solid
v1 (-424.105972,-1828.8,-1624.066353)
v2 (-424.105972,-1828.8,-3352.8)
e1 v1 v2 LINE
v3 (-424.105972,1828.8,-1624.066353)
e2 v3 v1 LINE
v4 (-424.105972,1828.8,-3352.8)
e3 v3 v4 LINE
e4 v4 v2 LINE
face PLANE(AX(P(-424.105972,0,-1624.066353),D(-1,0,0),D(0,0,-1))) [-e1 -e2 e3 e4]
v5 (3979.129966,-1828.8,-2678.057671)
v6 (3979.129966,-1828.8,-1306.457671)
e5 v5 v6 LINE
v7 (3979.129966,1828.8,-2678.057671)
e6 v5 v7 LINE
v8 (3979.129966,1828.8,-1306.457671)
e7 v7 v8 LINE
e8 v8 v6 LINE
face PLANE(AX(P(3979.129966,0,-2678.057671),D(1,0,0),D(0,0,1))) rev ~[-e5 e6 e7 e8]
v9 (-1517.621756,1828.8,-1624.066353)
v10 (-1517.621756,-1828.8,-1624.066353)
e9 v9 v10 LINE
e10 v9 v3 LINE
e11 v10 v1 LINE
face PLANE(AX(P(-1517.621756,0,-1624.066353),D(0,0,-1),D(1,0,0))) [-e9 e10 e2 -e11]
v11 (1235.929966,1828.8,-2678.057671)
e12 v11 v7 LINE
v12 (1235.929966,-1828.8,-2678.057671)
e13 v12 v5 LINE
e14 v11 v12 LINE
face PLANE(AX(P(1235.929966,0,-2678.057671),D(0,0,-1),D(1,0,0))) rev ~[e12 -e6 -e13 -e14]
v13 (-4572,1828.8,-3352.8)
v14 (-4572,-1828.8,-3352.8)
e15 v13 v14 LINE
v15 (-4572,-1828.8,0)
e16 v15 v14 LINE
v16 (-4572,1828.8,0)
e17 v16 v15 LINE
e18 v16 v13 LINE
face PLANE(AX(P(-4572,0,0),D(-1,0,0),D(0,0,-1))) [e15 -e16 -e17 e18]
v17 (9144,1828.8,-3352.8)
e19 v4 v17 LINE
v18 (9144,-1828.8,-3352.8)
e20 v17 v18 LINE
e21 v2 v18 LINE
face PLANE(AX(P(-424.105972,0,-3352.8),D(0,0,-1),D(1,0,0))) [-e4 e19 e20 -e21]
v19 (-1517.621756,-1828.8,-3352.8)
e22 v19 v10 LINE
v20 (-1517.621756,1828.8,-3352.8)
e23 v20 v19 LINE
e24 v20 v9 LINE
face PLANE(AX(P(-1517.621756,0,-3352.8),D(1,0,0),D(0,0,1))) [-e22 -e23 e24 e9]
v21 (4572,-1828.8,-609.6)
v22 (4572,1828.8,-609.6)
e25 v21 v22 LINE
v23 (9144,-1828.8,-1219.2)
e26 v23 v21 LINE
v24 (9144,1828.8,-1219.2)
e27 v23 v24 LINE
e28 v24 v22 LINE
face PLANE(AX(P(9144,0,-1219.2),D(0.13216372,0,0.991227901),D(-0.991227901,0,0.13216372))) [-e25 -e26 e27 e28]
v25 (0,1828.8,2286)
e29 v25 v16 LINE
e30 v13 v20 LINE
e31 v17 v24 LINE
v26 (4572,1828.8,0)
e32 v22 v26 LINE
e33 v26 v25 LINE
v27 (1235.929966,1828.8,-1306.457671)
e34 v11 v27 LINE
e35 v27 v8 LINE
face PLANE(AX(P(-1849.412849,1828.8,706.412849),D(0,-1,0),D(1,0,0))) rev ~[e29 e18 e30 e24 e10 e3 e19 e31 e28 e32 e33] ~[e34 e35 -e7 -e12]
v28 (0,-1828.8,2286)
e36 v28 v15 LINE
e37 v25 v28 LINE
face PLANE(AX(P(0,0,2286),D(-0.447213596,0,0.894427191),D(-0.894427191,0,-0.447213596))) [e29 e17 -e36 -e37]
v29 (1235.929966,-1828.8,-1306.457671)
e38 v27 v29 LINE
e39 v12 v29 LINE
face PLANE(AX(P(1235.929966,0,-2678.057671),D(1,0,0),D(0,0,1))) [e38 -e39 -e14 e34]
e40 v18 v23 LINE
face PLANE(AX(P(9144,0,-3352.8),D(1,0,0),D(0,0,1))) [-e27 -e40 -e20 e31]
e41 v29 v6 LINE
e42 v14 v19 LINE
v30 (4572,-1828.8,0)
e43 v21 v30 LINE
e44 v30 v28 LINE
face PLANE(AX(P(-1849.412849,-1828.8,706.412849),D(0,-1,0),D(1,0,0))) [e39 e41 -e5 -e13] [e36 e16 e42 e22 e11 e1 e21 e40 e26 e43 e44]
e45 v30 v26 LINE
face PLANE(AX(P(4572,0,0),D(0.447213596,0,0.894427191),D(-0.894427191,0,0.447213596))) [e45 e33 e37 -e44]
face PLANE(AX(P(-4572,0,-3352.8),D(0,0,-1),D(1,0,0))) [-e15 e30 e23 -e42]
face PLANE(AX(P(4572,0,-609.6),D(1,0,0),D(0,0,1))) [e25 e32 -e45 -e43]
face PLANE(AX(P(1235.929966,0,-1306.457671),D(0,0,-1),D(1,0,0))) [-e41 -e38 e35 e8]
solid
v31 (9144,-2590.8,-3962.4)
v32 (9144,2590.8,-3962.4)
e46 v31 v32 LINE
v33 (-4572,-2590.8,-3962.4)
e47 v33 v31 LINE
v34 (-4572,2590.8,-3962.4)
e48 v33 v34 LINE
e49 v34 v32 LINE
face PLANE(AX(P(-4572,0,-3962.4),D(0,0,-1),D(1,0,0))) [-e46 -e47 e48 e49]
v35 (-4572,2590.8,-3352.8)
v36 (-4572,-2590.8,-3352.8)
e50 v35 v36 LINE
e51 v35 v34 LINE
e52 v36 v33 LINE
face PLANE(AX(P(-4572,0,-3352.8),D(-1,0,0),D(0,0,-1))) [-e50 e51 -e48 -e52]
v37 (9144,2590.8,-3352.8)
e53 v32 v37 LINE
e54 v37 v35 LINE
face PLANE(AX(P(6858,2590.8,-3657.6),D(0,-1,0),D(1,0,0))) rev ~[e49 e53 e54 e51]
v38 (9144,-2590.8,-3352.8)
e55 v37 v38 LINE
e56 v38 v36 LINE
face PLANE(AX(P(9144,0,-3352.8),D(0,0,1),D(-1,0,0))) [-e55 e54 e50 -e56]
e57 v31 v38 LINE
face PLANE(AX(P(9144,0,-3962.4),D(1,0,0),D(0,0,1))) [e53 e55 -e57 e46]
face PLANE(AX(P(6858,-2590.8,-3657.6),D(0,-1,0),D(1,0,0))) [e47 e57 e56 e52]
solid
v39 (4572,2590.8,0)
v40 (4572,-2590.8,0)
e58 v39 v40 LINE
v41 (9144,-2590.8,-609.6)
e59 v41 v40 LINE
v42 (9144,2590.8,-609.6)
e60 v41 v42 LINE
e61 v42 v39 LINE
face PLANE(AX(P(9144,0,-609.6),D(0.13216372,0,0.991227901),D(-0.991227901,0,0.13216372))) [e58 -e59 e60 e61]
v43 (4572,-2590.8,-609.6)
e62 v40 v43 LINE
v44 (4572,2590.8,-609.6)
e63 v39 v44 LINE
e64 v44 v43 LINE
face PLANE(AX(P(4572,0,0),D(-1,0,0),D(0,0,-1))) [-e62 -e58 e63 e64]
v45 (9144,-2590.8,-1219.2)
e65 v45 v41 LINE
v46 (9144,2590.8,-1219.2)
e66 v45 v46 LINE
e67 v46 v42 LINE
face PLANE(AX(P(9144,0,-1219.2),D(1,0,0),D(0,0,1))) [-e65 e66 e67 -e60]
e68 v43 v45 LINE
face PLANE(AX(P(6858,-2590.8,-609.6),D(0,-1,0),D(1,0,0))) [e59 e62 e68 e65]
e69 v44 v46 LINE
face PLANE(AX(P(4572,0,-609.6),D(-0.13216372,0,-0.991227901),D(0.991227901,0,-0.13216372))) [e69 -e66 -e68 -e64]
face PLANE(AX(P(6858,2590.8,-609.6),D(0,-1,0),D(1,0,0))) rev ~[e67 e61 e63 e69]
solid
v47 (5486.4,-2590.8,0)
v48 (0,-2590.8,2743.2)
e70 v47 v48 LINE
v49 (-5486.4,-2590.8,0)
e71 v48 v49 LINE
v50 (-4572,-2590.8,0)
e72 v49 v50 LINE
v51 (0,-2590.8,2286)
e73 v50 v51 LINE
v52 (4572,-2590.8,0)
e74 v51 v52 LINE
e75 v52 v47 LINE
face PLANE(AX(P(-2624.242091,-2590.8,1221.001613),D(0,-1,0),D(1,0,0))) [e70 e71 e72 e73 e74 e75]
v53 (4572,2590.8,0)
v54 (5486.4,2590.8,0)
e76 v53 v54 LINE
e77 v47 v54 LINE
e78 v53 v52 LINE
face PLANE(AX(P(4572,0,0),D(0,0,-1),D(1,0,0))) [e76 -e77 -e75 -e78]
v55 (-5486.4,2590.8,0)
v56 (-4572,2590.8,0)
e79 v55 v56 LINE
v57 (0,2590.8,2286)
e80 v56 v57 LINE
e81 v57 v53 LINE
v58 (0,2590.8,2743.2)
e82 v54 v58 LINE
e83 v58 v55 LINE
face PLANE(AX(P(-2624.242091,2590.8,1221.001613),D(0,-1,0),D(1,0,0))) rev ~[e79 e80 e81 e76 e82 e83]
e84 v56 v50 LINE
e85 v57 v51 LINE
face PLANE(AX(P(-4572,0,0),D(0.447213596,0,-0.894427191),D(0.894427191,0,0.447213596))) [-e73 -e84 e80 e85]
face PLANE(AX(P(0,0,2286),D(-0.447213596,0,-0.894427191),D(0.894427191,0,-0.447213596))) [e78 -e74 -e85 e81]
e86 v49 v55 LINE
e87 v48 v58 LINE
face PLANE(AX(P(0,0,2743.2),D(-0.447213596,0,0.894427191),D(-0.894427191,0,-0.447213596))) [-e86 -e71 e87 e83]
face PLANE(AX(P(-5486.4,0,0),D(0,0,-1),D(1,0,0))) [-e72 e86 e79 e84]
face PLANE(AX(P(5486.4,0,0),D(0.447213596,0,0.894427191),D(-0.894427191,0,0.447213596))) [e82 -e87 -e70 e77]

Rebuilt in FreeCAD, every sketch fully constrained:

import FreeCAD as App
import Part
import Sketcher
Q = App.Units.Quantity


def add_polygon(sketch, points):
    """Adds a closed chain of lines whose ends are joined by coincident constraints."""
    first, n = sketch.GeometryCount, len(points)
    for a, b in zip(points, points[1:] + points[:1]):
        sketch.addGeometry(Part.LineSegment(App.Vector(*a, 0), App.Vector(*b, 0)), False)
    for i in range(n):
        sketch.addConstraint(Sketcher.Constraint("Coincident", first + i, 2, first + (i + 1) % n, 1))

doc = App.newDocument("Part")
params = doc.addObject("Spreadsheet::Sheet", "Params")
for row, (alias, value) in enumerate([
    ("sketch1_width", "36 in"),
    ("pad1_length", "204 in"),
    ("sketch2_height", "24 in"),
    ("pad2_length", "204 in"),
    ("sketch3_width", "540 in"),
    ("sketch3_height", "24 in"),
    ("pad3_length", "204 in"),
    ("sketch4_width", "108 in"),
    ("sketch4_height", "132 in"),
    ("sketch4_height2", "84 in"),
    ("sketch4_height3", "24 in"),
    ("sketch4_height4", "54 in"),
    ("pad4_length", "144 in"),
], start=1):
    params.set(f"A{row}", alias)
    params.set(f"B{row}", "=" + value)
    params.setAlias(f"B{row}", alias)

body = doc.addObject("PartDesign::Body", "Body")

# Sketch on XZ plane
sketch1 = body.newObject("Sketcher::SketchObject", "Sketch")
sketch1.AttachmentSupport = (doc.getObject("XZ_Plane"), [""])
sketch1.MapMode = "FlatFace"
add_polygon(sketch1, [(-5486, 0), (-4572, 0), (0, 2286), (4572, 0), (5486, 0), (0, 2743)])  # lines 0-5
sketch1.addConstraint([
    Sketcher.Constraint("Horizontal", 0),
    Sketcher.Constraint("Horizontal", 3),
    Sketcher.Constraint("Symmetric", 0, 2, 2, 2, -1, 1),
    Sketcher.Constraint("Symmetric", 3, 2, 5, 2, -2),
    Sketcher.Constraint("PointOnObject", 1, 2, -2),
    Sketcher.Constraint("PointOnObject", 4, 2, -2),
    Sketcher.Constraint("Parallel", 2, 4),
    Sketcher.Constraint("DistanceX", 0, 1, 0, 2, Q("36 in")),
    Sketcher.Constraint("DistanceX", 0, 2, -1, 1, Q("180 in")),
    Sketcher.Constraint("DistanceY", -1, 1, 1, 2, Q("90 in")),
])
sketch1.setExpression("Constraints[13]", "Params.sketch1_width")
pad1 = body.newObject("PartDesign::Pad", "Pad")
pad1.Profile = sketch1
pad1.setExpression("Length", "Params.pad1_length")
pad1.Midplane = True
body2 = doc.addObject("PartDesign::Body", "Body001")

# Sketch on XZ plane
sketch2 = body2.newObject("Sketcher::SketchObject", "Sketch001")
sketch2.AttachmentSupport = (doc.getObject("XZ_Plane001"), [""])
sketch2.MapMode = "FlatFace"
add_polygon(sketch2, [(9144, -610), (4572, 0), (4572, -610), (9144, -1219)])  # lines 0-3
sketch2.addConstraint([
    Sketcher.Constraint("Vertical", 1),
    Sketcher.Constraint("Vertical", 3),
    Sketcher.Constraint("PointOnObject", 0, 2, -1),
    Sketcher.Constraint("Parallel", 0, 2),
    Sketcher.Constraint("Horizontal", 1, 2, 3, 2),
    Sketcher.Constraint("DistanceY", 1, 2, 1, 1, Q("24 in")),
    Sketcher.Constraint("DistanceX", -1, 1, 0, 2, Q("180 in")),
    Sketcher.Constraint("DistanceX", -1, 1, 2, 2, Q("360 in")),
])
sketch2.setExpression("Constraints[9]", "Params.sketch2_height")
pad2 = body2.newObject("PartDesign::Pad", "Pad001")
pad2.Profile = sketch2
pad2.setExpression("Length", "Params.pad2_length")
pad2.Midplane = True
body3 = doc.addObject("PartDesign::Body", "Body002")

# Sketch on XZ plane
sketch3 = body3.newObject("Sketcher::SketchObject", "Sketch002")
sketch3.AttachmentSupport = (doc.getObject("XZ_Plane002"), [""])
sketch3.MapMode = "FlatFace"
add_polygon(sketch3, [(9144, -3962), (9144, -3353), (-4572, -3353), (-4572, -3962)])  # lines 0-3
sketch3.addConstraint([
    Sketcher.Constraint("Vertical", 0),
    Sketcher.Constraint("Horizontal", 1),
    Sketcher.Constraint("Vertical", 2),
    Sketcher.Constraint("Horizontal", 3),
    Sketcher.Constraint("DistanceX", 1, 2, 1, 1, Q("540 in")),
    Sketcher.Constraint("DistanceY", 0, 1, 0, 2, Q("24 in")),
    Sketcher.Constraint("DistanceX", -1, 1, 0, 2, Q("360 in")),
    Sketcher.Constraint("DistanceY", 0, 2, -1, 1, Q("132 in")),
])
sketch3.setExpression("Constraints[8]", "Params.sketch3_width")
sketch3.setExpression("Constraints[9]", "Params.sketch3_height")
pad3 = body3.newObject("PartDesign::Pad", "Pad002")
pad3.Profile = sketch3
pad3.setExpression("Length", "Params.pad3_length")
pad3.Midplane = True
body4 = doc.addObject("PartDesign::Body", "Body003")

# Sketch on XZ plane
sketch4 = body4.newObject("Sketcher::SketchObject", "Sketch003")
sketch4.AttachmentSupport = (doc.getObject("XZ_Plane003"), [""])
sketch4.MapMode = "FlatFace"
add_polygon(sketch4, [(4572, 0), (0, 2286), (-4572, 0), (-4572, -3353), (-1518, -3353), (-1518, -1624), (-424, -1624), (-424, -3353), (9144, -3353), (9144, -1219), (4572, -610)])  # lines 0-10
add_polygon(sketch4, [(3979, -2678), (1236, -2678), (1236, -1306), (3979, -1306)])  # lines 11-14
sketch4.addConstraint([
    Sketcher.Constraint("Vertical", 2),
    Sketcher.Constraint("Horizontal", 3),
    Sketcher.Constraint("Vertical", 4),
    Sketcher.Constraint("Horizontal", 5),
    Sketcher.Constraint("Vertical", 6),
    Sketcher.Constraint("Horizontal", 7),
    Sketcher.Constraint("Vertical", 8),
    Sketcher.Constraint("Vertical", 10),
    Sketcher.Constraint("Horizontal", 11),
    Sketcher.Constraint("Vertical", 12),
    Sketcher.Constraint("Horizontal", 13),
    Sketcher.Constraint("Vertical", 14),
    Sketcher.Constraint("Symmetric", 1, 2, 10, 2, -1, 1),
    Sketcher.Constraint("PointOnObject", 0, 2, -2),
    Sketcher.Constraint("PointOnObject", 1, 2, -1),
    Sketcher.Constraint("Horizontal", 3, 2, 6, 2),
    Sketcher.Constraint("DistanceX", 11, 2, 11, 1, Q("108 in")),
    Sketcher.Constraint("DistanceY", 2, 2, 2, 1, Q("132 in")),
    Sketcher.Constraint("DistanceY", 8, 1, 8, 2, Q("84 in")),
    Sketcher.Constraint("DistanceY", 10, 1, 10, 2, Q("24 in")),
    Sketcher.Constraint("DistanceY", 12, 1, 12, 2, Q("54 in")),
    Sketcher.Constraint("DistanceY", -1, 1, 0, 2, Q("90 in")),
    Sketcher.Constraint("DistanceX", 1, 2, -1, 1, Q("180 in")),
    Sketcher.Constraint("DistanceX", -1, 1, 7, 2, Q("360 in")),
    Sketcher.Constraint("DistanceX", 3, 1, 3, 2, Q("3054.378244 mm")),
    Sketcher.Constraint("DistanceX", 5, 1, 5, 2, Q("1093.515784 mm")),
    Sketcher.Constraint("DistanceY", 4, 1, 4, 2, Q("1728.733647 mm")),
    Sketcher.Constraint("DistanceY", 11, 2, -1, 1, Q("2678.057671 mm")),
    Sketcher.Constraint("DistanceX", 6, 2, 11, 2, Q("1660.035938 mm")),
])
sketch4.setExpression("Constraints[31]", "Params.sketch4_width")
sketch4.setExpression("Constraints[32]", "Params.sketch4_height")
sketch4.setExpression("Constraints[33]", "Params.sketch4_height2")
sketch4.setExpression("Constraints[34]", "Params.sketch4_height3")
sketch4.setExpression("Constraints[35]", "Params.sketch4_height4")
pad4 = body4.newObject("PartDesign::Pad", "Pad003")
pad4.Profile = sketch4
pad4.setExpression("Length", "Params.pad4_length")
pad4.Midplane = True

doc.recompute()
